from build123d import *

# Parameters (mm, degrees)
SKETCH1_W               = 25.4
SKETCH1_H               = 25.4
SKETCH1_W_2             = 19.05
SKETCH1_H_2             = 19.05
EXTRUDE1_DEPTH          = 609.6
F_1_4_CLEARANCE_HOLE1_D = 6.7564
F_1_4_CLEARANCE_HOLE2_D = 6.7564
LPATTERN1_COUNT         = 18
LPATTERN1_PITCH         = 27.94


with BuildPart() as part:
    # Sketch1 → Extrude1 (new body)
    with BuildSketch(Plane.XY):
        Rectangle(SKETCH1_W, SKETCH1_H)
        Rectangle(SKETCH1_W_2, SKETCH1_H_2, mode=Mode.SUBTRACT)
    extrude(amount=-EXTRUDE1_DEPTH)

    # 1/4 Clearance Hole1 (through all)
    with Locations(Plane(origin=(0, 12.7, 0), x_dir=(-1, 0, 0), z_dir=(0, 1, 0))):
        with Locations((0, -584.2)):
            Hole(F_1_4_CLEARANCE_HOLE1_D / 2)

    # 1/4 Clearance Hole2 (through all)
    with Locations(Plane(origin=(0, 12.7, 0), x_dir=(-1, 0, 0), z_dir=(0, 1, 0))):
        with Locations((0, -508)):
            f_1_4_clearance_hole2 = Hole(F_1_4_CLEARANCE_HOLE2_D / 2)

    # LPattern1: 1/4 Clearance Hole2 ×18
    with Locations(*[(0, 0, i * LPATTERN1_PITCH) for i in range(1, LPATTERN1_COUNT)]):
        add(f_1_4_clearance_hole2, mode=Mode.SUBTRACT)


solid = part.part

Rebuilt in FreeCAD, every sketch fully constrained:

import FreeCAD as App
import Part
import Sketcher

V = App.Vector
Q = App.Units.Quantity

doc = App.newDocument("Part")
params = doc.addObject("Spreadsheet::Sheet", "Params")
for row, (alias, value) in enumerate([
    ("sketch1_width", "1 in"),
    ("sketch1_width2", "0.75 in"),
    ("pad1_length", "24 in"),
    ("sketch2_diameter", "0.266 in"),
    ("hole_diameter", "0.266 in"),
    ("sketch3_diameter", "0.266 in"),
    ("hole2_diameter", "0.266 in"),
    ("linearpattern_pitch", "1.1 in"),
], start=1):
    params.set(f"A{row}", alias)
    params.set(f"B{row}", "=" + value)
    params.setAlias(f"B{row}", alias)

body = doc.addObject("PartDesign::Body", "Body")

sketch1 = body.newObject("Sketcher::SketchObject", "Sketch")
sketch1.AttachmentSupport = (doc.getObject("XY_Plane"), [""])
sketch1.MapMode = "FlatFace"
sketch1.addGeometry(Part.LineSegment(V(-13, 13, 0), V(-13, -13, 0)), False)
sketch1.addGeometry(Part.LineSegment(V(-13, -13, 0), V(13, -13, 0)), False)
sketch1.addGeometry(Part.LineSegment(V(13, -13, 0), V(13, 13, 0)), False)
sketch1.addGeometry(Part.LineSegment(V(13, 13, 0), V(-13, 13, 0)), False)
sketch1.addGeometry(Part.LineSegment(V(10, -10, 0), V(-10, -10, 0)), False)
sketch1.addGeometry(Part.LineSegment(V(-10, -10, 0), V(-10, 10, 0)), False)
sketch1.addGeometry(Part.LineSegment(V(-10, 10, 0), V(10, 10, 0)), False)
sketch1.addGeometry(Part.LineSegment(V(10, 10, 0), V(10, -10, 0)), False)
sketch1.addConstraint(Sketcher.Constraint("Coincident", 0, 2, 1, 1))
sketch1.addConstraint(Sketcher.Constraint("Coincident", 1, 2, 2, 1))
sketch1.addConstraint(Sketcher.Constraint("Coincident", 2, 2, 3, 1))
sketch1.addConstraint(Sketcher.Constraint("Coincident", 3, 2, 0, 1))
sketch1.addConstraint(Sketcher.Constraint("Coincident", 4, 2, 5, 1))
sketch1.addConstraint(Sketcher.Constraint("Coincident", 5, 2, 6, 1))
sketch1.addConstraint(Sketcher.Constraint("Coincident", 6, 2, 7, 1))
sketch1.addConstraint(Sketcher.Constraint("Coincident", 7, 2, 4, 1))
sketch1.addConstraint(Sketcher.Constraint("Vertical", 0))
sketch1.addConstraint(Sketcher.Constraint("Horizontal", 1))
sketch1.addConstraint(Sketcher.Constraint("Vertical", 2))
sketch1.addConstraint(Sketcher.Constraint("Horizontal", 3))
sketch1.addConstraint(Sketcher.Constraint("Horizontal", 4))
sketch1.addConstraint(Sketcher.Constraint("Vertical", 5))
sketch1.addConstraint(Sketcher.Constraint("Horizontal", 6))
sketch1.addConstraint(Sketcher.Constraint("Vertical", 7))
sketch1.addConstraint(Sketcher.Constraint("Symmetric", 0, 2, 2, 2, -1, 1))
sketch1.addConstraint(Sketcher.Constraint("Symmetric", 4, 2, 6, 2, -1, 1))
sketch1.addConstraint(Sketcher.Constraint("Equal", 3, 0))
sketch1.addConstraint(Sketcher.Constraint("Equal", 6, 5))
sketch1.addConstraint(Sketcher.Constraint("DistanceX", 1, 1, 1, 2, Q("1 in")))
sketch1.addConstraint(Sketcher.Constraint("DistanceX", 4, 2, 4, 1, Q("0.75 in")))
sketch1.setExpression("Constraints[20]", "Params.sketch1_width")
sketch1.setExpression("Constraints[21]", "Params.sketch1_width2")
pad1 = body.newObject("PartDesign::Pad", "Pad")
pad1.Profile = sketch1
pad1.setExpression("Length", "Params.pad1_length")
pad1.Reversed = True

sketch2 = body.newObject("Sketcher::SketchObject", "Sketch001")
sketch2.AttachmentSupport = (doc.getObject("XZ_Plane"), [""])
sketch2.MapMode = "FlatFace"
sketch2.AttachmentOffset = App.Placement(V(0, 0, -0.5 * 25.4), App.Rotation())
sketch2.addGeometry(Part.Circle(V(0, -584.2, 0), V(0, 0, 1), 3.4), False)
sketch2.addConstraint(Sketcher.Constraint("PointOnObject", 0, 3, -2))
sketch2.addConstraint(Sketcher.Constraint("Diameter", 0, Q("0.266 in")))
sketch2.addConstraint(Sketcher.Constraint("DistanceY", 0, 3, -1, 1, Q("23 in")))
sketch2.setExpression("Constraints[1]", "Params.sketch2_diameter")
doc.recompute()
hole = body.newObject("PartDesign::Hole", "Hole")
hole.Profile = sketch2
hole.ThreadType = "None"
hole.setExpression("Diameter", "Params.hole_diameter")
hole.DepthType = "ThroughAll"
hole.Reversed = True

sketch3 = body.newObject("Sketcher::SketchObject", "Sketch002")
sketch3.AttachmentSupport = (doc.getObject("XZ_Plane"), [""])
sketch3.MapMode = "FlatFace"
sketch3.AttachmentOffset = App.Placement(V(0, 0, -0.5 * 25.4), App.Rotation())
sketch3.addGeometry(Part.Circle(V(0, -508, 0), V(0, 0, 1), 3.4), False)
sketch3.addConstraint(Sketcher.Constraint("PointOnObject", 0, 3, -2))
sketch3.addConstraint(Sketcher.Constraint("Diameter", 0, Q("0.266 in")))
sketch3.addConstraint(Sketcher.Constraint("DistanceY", 0, 3, -1, 1, Q("20 in")))
sketch3.setExpression("Constraints[1]", "Params.sketch3_diameter")
doc.recompute()
hole2 = body.newObject("PartDesign::Hole", "Hole001")
hole2.Profile = sketch3
hole2.ThreadType = "None"
hole2.setExpression("Diameter", "Params.hole2_diameter")
hole2.DepthType = "ThroughAll"
hole2.Reversed = True
doc.recompute()

linearpattern = body.newObject("PartDesign::LinearPattern", "LinearPattern")
linearpattern.Originals = [hole2]
linearpattern.Direction = (doc.getObject("Z_Axis"), [""])
linearpattern.Mode = "offset"
linearpattern.setExpression("Offset", "Params.linearpattern_pitch")
linearpattern.Occurrences = 18
body.Tip = linearpattern

doc.recompute()
